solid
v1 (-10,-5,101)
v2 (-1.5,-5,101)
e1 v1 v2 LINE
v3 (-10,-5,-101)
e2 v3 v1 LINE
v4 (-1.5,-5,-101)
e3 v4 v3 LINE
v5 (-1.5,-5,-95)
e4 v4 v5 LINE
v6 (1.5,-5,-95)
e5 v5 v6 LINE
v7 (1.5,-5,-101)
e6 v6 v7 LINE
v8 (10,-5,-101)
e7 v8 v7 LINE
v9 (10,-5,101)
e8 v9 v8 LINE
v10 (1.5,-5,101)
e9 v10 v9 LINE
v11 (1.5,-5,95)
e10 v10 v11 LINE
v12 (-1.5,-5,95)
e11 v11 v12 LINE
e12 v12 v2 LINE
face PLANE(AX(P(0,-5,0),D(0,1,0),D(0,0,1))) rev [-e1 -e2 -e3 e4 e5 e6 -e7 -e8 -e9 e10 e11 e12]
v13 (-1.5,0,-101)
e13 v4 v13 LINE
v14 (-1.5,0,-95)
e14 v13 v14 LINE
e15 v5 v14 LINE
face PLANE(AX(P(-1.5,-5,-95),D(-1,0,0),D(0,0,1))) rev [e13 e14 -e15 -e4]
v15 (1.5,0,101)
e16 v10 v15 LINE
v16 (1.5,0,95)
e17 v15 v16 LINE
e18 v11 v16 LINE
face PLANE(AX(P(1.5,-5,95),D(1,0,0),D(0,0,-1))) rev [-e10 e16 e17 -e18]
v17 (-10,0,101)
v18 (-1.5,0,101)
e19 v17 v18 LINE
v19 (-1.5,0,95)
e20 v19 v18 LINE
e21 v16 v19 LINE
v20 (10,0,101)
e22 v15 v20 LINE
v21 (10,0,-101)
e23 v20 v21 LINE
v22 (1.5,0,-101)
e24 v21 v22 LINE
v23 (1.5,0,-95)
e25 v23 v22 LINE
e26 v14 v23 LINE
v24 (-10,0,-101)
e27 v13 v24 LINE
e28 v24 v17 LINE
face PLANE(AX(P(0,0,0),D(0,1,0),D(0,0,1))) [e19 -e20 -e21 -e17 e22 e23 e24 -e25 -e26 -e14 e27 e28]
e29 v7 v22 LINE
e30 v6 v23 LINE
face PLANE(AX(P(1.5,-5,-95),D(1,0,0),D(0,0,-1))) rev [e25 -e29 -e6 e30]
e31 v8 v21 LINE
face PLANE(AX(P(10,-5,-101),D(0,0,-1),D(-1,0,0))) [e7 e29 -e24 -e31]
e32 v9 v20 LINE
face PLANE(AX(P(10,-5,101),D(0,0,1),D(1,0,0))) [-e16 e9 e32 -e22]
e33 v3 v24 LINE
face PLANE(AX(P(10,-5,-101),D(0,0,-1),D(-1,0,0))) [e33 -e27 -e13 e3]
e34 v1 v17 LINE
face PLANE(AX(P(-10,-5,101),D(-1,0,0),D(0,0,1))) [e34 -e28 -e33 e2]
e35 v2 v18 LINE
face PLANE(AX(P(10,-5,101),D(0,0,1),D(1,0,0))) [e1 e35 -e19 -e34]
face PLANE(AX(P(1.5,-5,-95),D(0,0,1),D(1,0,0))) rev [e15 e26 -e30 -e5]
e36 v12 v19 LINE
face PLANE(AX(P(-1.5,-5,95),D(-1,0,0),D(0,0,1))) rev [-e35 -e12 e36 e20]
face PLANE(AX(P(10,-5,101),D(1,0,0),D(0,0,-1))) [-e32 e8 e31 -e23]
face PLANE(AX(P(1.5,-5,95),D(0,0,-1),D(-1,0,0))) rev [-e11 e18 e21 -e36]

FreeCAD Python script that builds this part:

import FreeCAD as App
import Part
import Sketcher

V = App.Vector
Q = App.Units.Quantity

doc = App.newDocument("Part")
body = doc.addObject("PartDesign::Body", "Body")

# Sketch on XZ plane
sketch1 = doc.addObject("Sketcher::SketchObject", "Sketch")
body.addObject(sketch1)
sketch1.AttachmentSupport = (doc.XZ_Plane, [""])
sketch1.MapMode = "FlatFace"
sketch1.addGeometry(Part.LineSegment(V(-10, -101, 0), V(-10, 101, 0)), False)
sketch1.addGeometry(Part.LineSegment(V(-10, 101, 0), V(10, 101, 0)), False)
sketch1.addGeometry(Part.LineSegment(V(10, 101, 0), V(10, -101, 0)), False)
sketch1.addGeometry(Part.LineSegment(V(10, -101, 0), V(-10, -101, 0)), False)
sketch1.addConstraint(Sketcher.Constraint("Coincident", 0, 2, 1, 1))
sketch1.addConstraint(Sketcher.Constraint("Coincident", 1, 2, 2, 1))
sketch1.addConstraint(Sketcher.Constraint("Coincident", 2, 2, 3, 1))
sketch1.addConstraint(Sketcher.Constraint("Coincident", 3, 2, 0, 1))
sketch1.addConstraint(Sketcher.Constraint("Vertical", 0))
sketch1.addConstraint(Sketcher.Constraint("Horizontal", 1))
sketch1.addConstraint(Sketcher.Constraint("Vertical", 2))
sketch1.addConstraint(Sketcher.Constraint("Horizontal", 3))
sketch1.addConstraint(Sketcher.Constraint("Symmetric", 0, 2, 2, 2, -1, 1))
sketch1.addConstraint(Sketcher.Constraint("DistanceX", 1, 1, 1, 2, Q("20 mm")))
sketch1.addConstraint(Sketcher.Constraint("DistanceY", 0, 1, 0, 2, Q("202 mm")))
pad1 = doc.addObject("PartDesign::Pad", "Pad")
body.addObject(pad1)
pad1.Profile = sketch1
pad1.Length = 5

# Sketch on XZ plane
sketch2 = doc.addObject("Sketcher::SketchObject", "Sketch001")
body.addObject(sketch2)
sketch2.AttachmentSupport = (doc.XZ_Plane, [""])
sketch2.MapMode = "FlatFace"
sketch2.addGeometry(Part.LineSegment(V(-1.5, 95, 0), V(-1.5, 101, 0)), False)
sketch2.addGeometry(Part.LineSegment(V(-1.5, 101, 0), V(1.5, 101, 0)), False)
sketch2.addGeometry(Part.LineSegment(V(1.5, 101, 0), V(1.5, 95, 0)), False)
sketch2.addGeometry(Part.LineSegment(V(1.5, 95, 0), V(-1.5, 95, 0)), False)
sketch2.addGeometry(Part.LineSegment(V(-1.5, -101, 0), V(-1.5, -95, 0)), False)
sketch2.addGeometry(Part.LineSegment(V(-1.5, -95, 0), V(1.5, -95, 0)), False)
sketch2.addGeometry(Part.LineSegment(V(1.5, -95, 0), V(1.5, -101, 0)), False)
sketch2.addGeometry(Part.LineSegment(V(1.5, -101, 0), V(-1.5, -101, 0)), False)
sketch2.addConstraint(Sketcher.Constraint("Coincident", 0, 2, 1, 1))
sketch2.addConstraint(Sketcher.Constraint("Coincident", 1, 2, 2, 1))
sketch2.addConstraint(Sketcher.Constraint("Coincident", 2, 2, 3, 1))
sketch2.addConstraint(Sketcher.Constraint("Coincident", 3, 2, 0, 1))
sketch2.addConstraint(Sketcher.Constraint("Coincident", 4, 2, 5, 1))
sketch2.addConstraint(Sketcher.Constraint("Coincident", 5, 2, 6, 1))
sketch2.addConstraint(Sketcher.Constraint("Coincident", 6, 2, 7, 1))
sketch2.addConstraint(Sketcher.Constraint("Coincident", 7, 2, 4, 1))
sketch2.addConstraint(Sketcher.Constraint("Vertical", 0))
sketch2.addConstraint(Sketcher.Constraint("Horizontal", 1))
sketch2.addConstraint(Sketcher.Constraint("Vertical", 2))
sketch2.addConstraint(Sketcher.Constraint("Horizontal", 3))
sketch2.addConstraint(Sketcher.Constraint("Vertical", 4))
sketch2.addConstraint(Sketcher.Constraint("Horizontal", 5))
sketch2.addConstraint(Sketcher.Constraint("Vertical", 6))
sketch2.addConstraint(Sketcher.Constraint("Horizontal", 7))
sketch2.addConstraint(Sketcher.Constraint("Symmetric", 2, 2, 4, 2, -1, 1))
sketch2.addConstraint(Sketcher.Constraint("Symmetric", 0, 2, 6, 2, -1, 1))
sketch2.addConstraint(Sketcher.Constraint("Vertical", 3, 2, 4, 2))
sketch2.addConstraint(Sketcher.Constraint("DistanceX", 1, 1, 1, 2, Q("3 mm")))
sketch2.addConstraint(Sketcher.Constraint("DistanceY", 0, 1, 0, 2, Q("6 mm")))
sketch2.addConstraint(Sketcher.Constraint("DistanceY", -1, 1, 0, 2, Q("101 mm")))
pocket1 = doc.addObject("PartDesign::Pocket", "Pocket")
body.addObject(pocket1)
pocket1.Profile = sketch2
pocket1.Type = "ThroughAll"
pocket1.Reversed = True

doc.recompute()
